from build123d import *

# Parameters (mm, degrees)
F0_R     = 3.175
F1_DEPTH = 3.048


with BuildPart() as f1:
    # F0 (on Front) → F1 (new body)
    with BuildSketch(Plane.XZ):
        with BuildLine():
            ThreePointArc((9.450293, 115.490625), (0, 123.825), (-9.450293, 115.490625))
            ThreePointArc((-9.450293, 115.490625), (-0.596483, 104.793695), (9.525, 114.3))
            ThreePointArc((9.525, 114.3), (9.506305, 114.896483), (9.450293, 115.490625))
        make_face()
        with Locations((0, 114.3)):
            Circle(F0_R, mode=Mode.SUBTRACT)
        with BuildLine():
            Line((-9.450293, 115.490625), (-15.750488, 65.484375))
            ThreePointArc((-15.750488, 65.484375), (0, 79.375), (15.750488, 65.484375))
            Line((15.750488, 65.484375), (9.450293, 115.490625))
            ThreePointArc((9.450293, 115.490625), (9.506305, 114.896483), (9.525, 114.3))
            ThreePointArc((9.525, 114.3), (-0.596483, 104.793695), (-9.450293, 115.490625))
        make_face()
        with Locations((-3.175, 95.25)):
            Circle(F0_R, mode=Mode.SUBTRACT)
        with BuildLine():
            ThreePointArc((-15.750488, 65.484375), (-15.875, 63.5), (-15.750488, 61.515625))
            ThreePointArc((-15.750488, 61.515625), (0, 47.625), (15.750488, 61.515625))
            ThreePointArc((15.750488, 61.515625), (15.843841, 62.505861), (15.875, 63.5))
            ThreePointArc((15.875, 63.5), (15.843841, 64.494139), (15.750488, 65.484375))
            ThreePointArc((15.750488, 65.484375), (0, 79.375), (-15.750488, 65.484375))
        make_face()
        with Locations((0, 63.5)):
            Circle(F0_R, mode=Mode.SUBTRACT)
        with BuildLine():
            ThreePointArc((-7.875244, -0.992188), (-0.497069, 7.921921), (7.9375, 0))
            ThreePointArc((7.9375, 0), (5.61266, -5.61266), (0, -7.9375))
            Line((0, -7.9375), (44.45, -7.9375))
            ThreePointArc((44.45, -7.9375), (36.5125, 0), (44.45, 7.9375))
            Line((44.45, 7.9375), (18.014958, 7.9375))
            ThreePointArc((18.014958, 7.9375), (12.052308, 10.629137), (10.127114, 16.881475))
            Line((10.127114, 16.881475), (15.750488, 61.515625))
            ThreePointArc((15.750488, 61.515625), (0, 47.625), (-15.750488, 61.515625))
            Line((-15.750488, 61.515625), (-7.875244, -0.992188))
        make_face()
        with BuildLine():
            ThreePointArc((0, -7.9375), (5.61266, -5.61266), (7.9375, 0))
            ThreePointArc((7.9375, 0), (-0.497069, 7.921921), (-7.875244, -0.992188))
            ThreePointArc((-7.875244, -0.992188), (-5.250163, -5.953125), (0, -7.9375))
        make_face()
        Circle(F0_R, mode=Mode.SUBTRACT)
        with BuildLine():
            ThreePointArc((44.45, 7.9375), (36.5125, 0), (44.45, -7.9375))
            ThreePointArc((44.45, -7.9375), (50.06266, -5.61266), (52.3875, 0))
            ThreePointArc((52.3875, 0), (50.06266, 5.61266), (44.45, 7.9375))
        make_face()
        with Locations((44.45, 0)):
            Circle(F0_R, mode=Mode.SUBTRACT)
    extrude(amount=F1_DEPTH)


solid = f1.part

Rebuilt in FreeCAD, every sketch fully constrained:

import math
import FreeCAD as App
import Part
import Sketcher
Q = App.Units.Quantity

doc = App.newDocument("Part")
body = doc.addObject("PartDesign::Body", "Body")

sketch1 = doc.addObject("Sketcher::SketchObject", "Sketch")
body.addObject(sketch1)
sketch1.AttachmentSupport = (doc.XZ_Plane, [""])
sketch1.MapMode = "FlatFace"
sketch1.addGeometry([
    Part.ArcOfCircle(Part.Circle(App.Vector(0, 114.3, 0), App.Vector(0, 0, 1), 9.525), math.radians(7.180756), math.radians(172.819244)),
    Part.LineSegment(App.Vector(-9.450293, 115.490625, 0), App.Vector(-15.750488, 65.484375, 0)),
    Part.ArcOfCircle(Part.Circle(App.Vector(-0.000035, 63.5, 0), App.Vector(0, 0, 1), 15.874965), math.radians(172.819228), math.radians(187.180772)),
    Part.LineSegment(App.Vector(-15.750488, 61.515625, 0), App.Vector(-7.875244, -0.992188, 0)),
    Part.ArcOfCircle(Part.Circle(App.Vector(0, -0.000001, 0), App.Vector(0, 0, 1), 7.937499), math.radians(-172.819245), math.radians(-89.999997)),
    Part.LineSegment(App.Vector(0, -7.9375, 0), App.Vector(44.45, -7.9375, 0)),
    Part.ArcOfCircle(Part.Circle(App.Vector(44.45, 0, 0), App.Vector(0, 0, 1), 7.9375), math.radians(-89.999998), math.radians(-0.000002)),
    Part.ArcOfCircle(Part.Circle(App.Vector(44.45, 0, 0), App.Vector(0, 0, 1), 7.9375), math.radians(0.000002), math.radians(89.999998)),
    Part.LineSegment(App.Vector(44.45, 7.9375, 0), App.Vector(18.014958, 7.9375, 0)),
    Part.ArcOfCircle(Part.Circle(App.Vector(18.014958, 15.887699, 0), App.Vector(0, 0, 1), 7.950199), math.radians(172.819238), math.radians(270.000002)),
    Part.LineSegment(App.Vector(10.127114, 16.881475, 0), App.Vector(15.750488, 61.515625, 0)),
    Part.ArcOfCircle(Part.Circle(App.Vector(-0.000171, 63.500013, 0), App.Vector(0, 0, 1), 15.875171), math.radians(-7.180725), math.radians(-0.000047)),
    Part.ArcOfCircle(Part.Circle(App.Vector(-0.000171, 63.499987, 0), App.Vector(0, 0, 1), 15.875171), math.radians(0.000047), math.radians(7.180725)),
    Part.LineSegment(App.Vector(15.750488, 65.484375, 0), App.Vector(9.450293, 115.490625, 0)),
    Part.Circle(App.Vector(0, 0, 0), App.Vector(0, 0, 1), 3.175),
    Part.Circle(App.Vector(44.45, 0, 0), App.Vector(0, 0, 1), 3.175),
    Part.Circle(App.Vector(0, 63.5, 0), App.Vector(0, 0, 1), 3.175),
    Part.Circle(App.Vector(-3.175, 95.25, 0), App.Vector(0, 0, 1), 3.175),
    Part.Circle(App.Vector(0, 114.3, 0), App.Vector(0, 0, 1), 3.175),
], False)
sketch1.addConstraint([
    Sketcher.Constraint("Coincident", 0, 2, 1, 1),
    Sketcher.Constraint("Coincident", 1, 2, 2, 1),
    Sketcher.Constraint("Coincident", 2, 2, 3, 1),
    Sketcher.Constraint("Coincident", 3, 2, 4, 1),
    Sketcher.Constraint("Coincident", 4, 2, 5, 1),
    Sketcher.Constraint("Coincident", 5, 2, 6, 1),
    Sketcher.Constraint("Coincident", 6, 2, 7, 1),
    Sketcher.Constraint("Coincident", 7, 2, 8, 1),
    Sketcher.Constraint("Coincident", 8, 2, 9, 2),
    Sketcher.Constraint("Coincident", 9, 1, 10, 1),
    Sketcher.Constraint("Coincident", 10, 2, 11, 1),
    Sketcher.Constraint("Coincident", 11, 2, 12, 1),
    Sketcher.Constraint("Coincident", 12, 2, 13, 1),
    Sketcher.Constraint("Coincident", 13, 2, 0, 1),
    Sketcher.Constraint("Horizontal", 5),
    Sketcher.Constraint("Horizontal", 8),
    Sketcher.Constraint("Coincident", 4, 3, -1, 1),
    Sketcher.Constraint("Coincident", 14, 3, -1, 1),
    Sketcher.Constraint("Coincident", 7, 3, 6, 3),
    Sketcher.Constraint("Coincident", 15, 3, 6, 3),
    Sketcher.Constraint("Coincident", 18, 3, 0, 3),
    Sketcher.Constraint("PointOnObject", 0, 3, -2),
    Sketcher.Constraint("PointOnObject", 6, 3, -1),
    Sketcher.Constraint("PointOnObject", 16, 3, -2),
    Sketcher.Constraint("PointOnObject", 4, 2, -2),
    Sketcher.Constraint("PointOnObject", 6, 2, -1),
    Sketcher.Constraint("Diameter", 14, Q("0.25 in")),
    Sketcher.Constraint("Diameter", 15, Q("0.25 in")),
    Sketcher.Constraint("Diameter", 16, Q("0.25 in")),
    Sketcher.Constraint("Diameter", 17, Q("0.25 in")),
    Sketcher.Constraint("Diameter", 18, Q("0.25 in")),
    Sketcher.Constraint("Radius", 0, Q("0.375 in")),
    Sketcher.Constraint("Radius", 4, Q("0.3125 in")),
    Sketcher.Constraint("Radius", 9, Q("0.313 in")),
    Sketcher.Constraint("DistanceY", 2, 3, 0, 3, Q("2 in")),
    Sketcher.Constraint("DistanceY", 16, 3, 0, 3, Q("2 in")),
    Sketcher.Constraint("DistanceX", 5, 1, 5, 2, Q("1.75 in")),
    Sketcher.Constraint("DistanceY", -1, 1, 0, 3, Q("4.5 in")),
    Sketcher.Constraint("DistanceY", -1, 1, 11, 2, Q("2.5 in")),
    Sketcher.Constraint("DistanceX", -1, 1, 6, 3, Q("1.75 in")),
    Sketcher.Constraint("DistanceY", -1, 1, 17, 3, Q("3.75 in")),
    Sketcher.Constraint("DistanceX", -1, 1, 7, 2, Q("1.75 in")),
    Sketcher.Constraint("DistanceX", 17, 3, -1, 1, Q("0.125 in")),
    Sketcher.Constraint("DistanceY", -1, 1, 0, 2, Q("4.546875 in")),
    Sketcher.Constraint("DistanceY", -1, 1, 1, 2, Q("2.578125 in")),
    Sketcher.Constraint("DistanceY", -1, 1, 2, 2, Q("2.421875 in")),
    Sketcher.Constraint("DistanceY", -1, 1, 10, 2, Q("2.421875 in")),
    Sketcher.Constraint("DistanceX", -1, 1, 11, 2, Q("0.625 in")),
    Sketcher.Constraint("DistanceY", -1, 1, 12, 2, Q("2.578125 in")),
    Sketcher.Constraint("DistanceY", -1, 1, 13, 2, Q("4.546875 in")),
    Sketcher.Constraint("Radius", 11, 15.875171),
    Sketcher.Constraint("Radius", 12, 15.875171),
    Sketcher.Constraint("Radius", 2, 15.874965),
    Sketcher.Constraint("DistanceX", 3, 2, 9, 3, 25.890202),
    Sketcher.Constraint("DistanceX", 8, 2, 8, 1, 26.435042),
    Sketcher.Constraint("DistanceX", 1, 2, -1, 1, 15.750488),
    Sketcher.Constraint("DistanceX", -1, 1, 10, 2, 15.750488),
    Sketcher.Constraint("DistanceX", -1, 1, 12, 2, 15.750488),
    Sketcher.Constraint("DistanceX", 4, 3, 9, 3, 18.014958),
    Sketcher.Constraint("Distance", 10, 44.986995),
])
pad1 = doc.addObject("PartDesign::Pad", "Pad")
body.addObject(pad1)
pad1.Profile = sketch1
pad1.Length = Q("0.12 in")

doc.recompute()
